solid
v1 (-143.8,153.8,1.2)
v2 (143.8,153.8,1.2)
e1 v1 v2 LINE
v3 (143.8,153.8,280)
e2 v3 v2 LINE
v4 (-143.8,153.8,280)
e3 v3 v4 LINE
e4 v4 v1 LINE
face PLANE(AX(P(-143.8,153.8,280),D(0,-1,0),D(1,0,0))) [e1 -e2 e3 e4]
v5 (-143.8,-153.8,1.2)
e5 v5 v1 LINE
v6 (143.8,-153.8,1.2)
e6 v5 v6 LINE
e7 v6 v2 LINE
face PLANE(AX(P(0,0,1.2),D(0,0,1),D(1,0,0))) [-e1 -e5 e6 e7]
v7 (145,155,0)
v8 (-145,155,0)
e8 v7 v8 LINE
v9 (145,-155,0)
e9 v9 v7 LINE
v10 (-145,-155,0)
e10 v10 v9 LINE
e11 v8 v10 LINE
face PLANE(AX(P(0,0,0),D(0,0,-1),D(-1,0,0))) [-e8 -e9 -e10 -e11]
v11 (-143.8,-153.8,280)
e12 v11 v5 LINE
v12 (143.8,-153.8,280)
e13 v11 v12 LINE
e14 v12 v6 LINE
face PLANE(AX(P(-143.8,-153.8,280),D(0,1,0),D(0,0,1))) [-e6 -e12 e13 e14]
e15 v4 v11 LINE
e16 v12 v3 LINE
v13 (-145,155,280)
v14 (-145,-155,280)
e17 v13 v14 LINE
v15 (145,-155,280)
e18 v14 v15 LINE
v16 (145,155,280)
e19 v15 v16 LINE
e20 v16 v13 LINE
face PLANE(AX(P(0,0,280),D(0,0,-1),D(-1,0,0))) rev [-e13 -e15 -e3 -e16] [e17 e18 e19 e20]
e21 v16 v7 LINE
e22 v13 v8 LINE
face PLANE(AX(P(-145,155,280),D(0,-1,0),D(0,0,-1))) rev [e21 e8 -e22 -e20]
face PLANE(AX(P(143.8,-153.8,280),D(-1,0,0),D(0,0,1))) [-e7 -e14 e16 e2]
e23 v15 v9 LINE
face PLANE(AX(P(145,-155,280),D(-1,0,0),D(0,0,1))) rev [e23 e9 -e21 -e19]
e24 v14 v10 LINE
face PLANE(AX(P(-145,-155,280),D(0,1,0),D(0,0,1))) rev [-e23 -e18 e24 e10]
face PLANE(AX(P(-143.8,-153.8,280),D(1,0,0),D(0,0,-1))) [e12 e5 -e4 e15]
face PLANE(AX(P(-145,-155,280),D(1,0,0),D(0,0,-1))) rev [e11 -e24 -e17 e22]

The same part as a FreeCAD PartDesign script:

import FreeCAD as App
import Part
import Sketcher

V = App.Vector
Q = App.Units.Quantity

doc = App.newDocument("Part")
body = doc.addObject("PartDesign::Body", "Body")

# Sketch on XY plane
sketch1 = doc.addObject("Sketcher::SketchObject", "Sketch")
body.addObject(sketch1)
sketch1.AttachmentSupport = (doc.XY_Plane, [""])
sketch1.MapMode = "FlatFace"
sketch1.addGeometry([
    Part.LineSegment(V(-145, 155, 0), V(-145, -155, 0)),  # 0
    Part.LineSegment(V(-145, -155, 0), V(145, -155, 0)),  # 1
    Part.LineSegment(V(145, -155, 0), V(145, 155, 0)),  # 2
    Part.LineSegment(V(145, 155, 0), V(-145, 155, 0)),  # 3
    Part.LineSegment(V(144, -154, 0), V(-144, -154, 0)),  # 4
    Part.LineSegment(V(-144, -154, 0), V(-144, 154, 0)),  # 5
    Part.LineSegment(V(-144, 154, 0), V(144, 154, 0)),  # 6
    Part.LineSegment(V(144, 154, 0), V(144, -154, 0)),  # 7
], False)
sketch1.addConstraint([
    Sketcher.Constraint("Coincident", 0, 2, 1, 1),
    Sketcher.Constraint("Coincident", 1, 2, 2, 1),
    Sketcher.Constraint("Coincident", 2, 2, 3, 1),
    Sketcher.Constraint("Coincident", 3, 2, 0, 1),
    Sketcher.Constraint("Coincident", 4, 2, 5, 1),
    Sketcher.Constraint("Coincident", 5, 2, 6, 1),
    Sketcher.Constraint("Coincident", 6, 2, 7, 1),
    Sketcher.Constraint("Coincident", 7, 2, 4, 1),
    Sketcher.Constraint("Vertical", 0),
    Sketcher.Constraint("Horizontal", 1),
    Sketcher.Constraint("Vertical", 2),
    Sketcher.Constraint("Horizontal", 3),
    Sketcher.Constraint("Horizontal", 4),
    Sketcher.Constraint("Vertical", 5),
    Sketcher.Constraint("Horizontal", 6),
    Sketcher.Constraint("Vertical", 7),
    Sketcher.Constraint("Symmetric", 0, 2, 2, 2, -1, 1),
    Sketcher.Constraint("Symmetric", 4, 2, 6, 2, -1, 1),
    Sketcher.Constraint("DistanceX", 1, 1, 1, 2, Q("290 mm")),
    Sketcher.Constraint("DistanceY", 0, 2, 0, 1, Q("310 mm")),
    Sketcher.Constraint("DistanceX", 4, 2, 4, 1, Q("287.6 mm")),
    Sketcher.Constraint("DistanceY", 5, 1, 5, 2, Q("307.6 mm")),
])
pad1 = doc.addObject("PartDesign::Pad", "Pad")
body.addObject(pad1)
pad1.Profile = sketch1
pad1.Length = 280

# Sketch on XY plane
sketch2 = doc.addObject("Sketcher::SketchObject", "Sketch001")
body.addObject(sketch2)
sketch2.AttachmentSupport = (doc.XY_Plane, [""])
sketch2.MapMode = "FlatFace"
sketch2.addGeometry([
    Part.LineSegment(V(-144, 154, 0), V(-144, -154, 0)),
    Part.LineSegment(V(-144, -154, 0), V(144, -154, 0)),
    Part.LineSegment(V(144, -154, 0), V(144, 154, 0)),
    Part.LineSegment(V(144, 154, 0), V(-144, 154, 0)),
], False)
sketch2.addConstraint([
    Sketcher.Constraint("Coincident", 0, 2, 1, 1),
    Sketcher.Constraint("Coincident", 1, 2, 2, 1),
    Sketcher.Constraint("Coincident", 2, 2, 3, 1),
    Sketcher.Constraint("Coincident", 3, 2, 0, 1),
    Sketcher.Constraint("Vertical", 0),
    Sketcher.Constraint("Horizontal", 1),
    Sketcher.Constraint("Vertical", 2),
    Sketcher.Constraint("Horizontal", 3),
    Sketcher.Constraint("Symmetric", 0, 2, 2, 2, -1, 1),
    Sketcher.Constraint("DistanceX", 1, 1, 1, 2, Q("287.6 mm")),
    Sketcher.Constraint("DistanceY", 0, 2, 0, 1, Q("307.6 mm")),
])
pad2 = doc.addObject("PartDesign::Pad", "Pad001")
body.addObject(pad2)
pad2.Profile = sketch2
pad2.Length = 1.2

doc.recompute()
